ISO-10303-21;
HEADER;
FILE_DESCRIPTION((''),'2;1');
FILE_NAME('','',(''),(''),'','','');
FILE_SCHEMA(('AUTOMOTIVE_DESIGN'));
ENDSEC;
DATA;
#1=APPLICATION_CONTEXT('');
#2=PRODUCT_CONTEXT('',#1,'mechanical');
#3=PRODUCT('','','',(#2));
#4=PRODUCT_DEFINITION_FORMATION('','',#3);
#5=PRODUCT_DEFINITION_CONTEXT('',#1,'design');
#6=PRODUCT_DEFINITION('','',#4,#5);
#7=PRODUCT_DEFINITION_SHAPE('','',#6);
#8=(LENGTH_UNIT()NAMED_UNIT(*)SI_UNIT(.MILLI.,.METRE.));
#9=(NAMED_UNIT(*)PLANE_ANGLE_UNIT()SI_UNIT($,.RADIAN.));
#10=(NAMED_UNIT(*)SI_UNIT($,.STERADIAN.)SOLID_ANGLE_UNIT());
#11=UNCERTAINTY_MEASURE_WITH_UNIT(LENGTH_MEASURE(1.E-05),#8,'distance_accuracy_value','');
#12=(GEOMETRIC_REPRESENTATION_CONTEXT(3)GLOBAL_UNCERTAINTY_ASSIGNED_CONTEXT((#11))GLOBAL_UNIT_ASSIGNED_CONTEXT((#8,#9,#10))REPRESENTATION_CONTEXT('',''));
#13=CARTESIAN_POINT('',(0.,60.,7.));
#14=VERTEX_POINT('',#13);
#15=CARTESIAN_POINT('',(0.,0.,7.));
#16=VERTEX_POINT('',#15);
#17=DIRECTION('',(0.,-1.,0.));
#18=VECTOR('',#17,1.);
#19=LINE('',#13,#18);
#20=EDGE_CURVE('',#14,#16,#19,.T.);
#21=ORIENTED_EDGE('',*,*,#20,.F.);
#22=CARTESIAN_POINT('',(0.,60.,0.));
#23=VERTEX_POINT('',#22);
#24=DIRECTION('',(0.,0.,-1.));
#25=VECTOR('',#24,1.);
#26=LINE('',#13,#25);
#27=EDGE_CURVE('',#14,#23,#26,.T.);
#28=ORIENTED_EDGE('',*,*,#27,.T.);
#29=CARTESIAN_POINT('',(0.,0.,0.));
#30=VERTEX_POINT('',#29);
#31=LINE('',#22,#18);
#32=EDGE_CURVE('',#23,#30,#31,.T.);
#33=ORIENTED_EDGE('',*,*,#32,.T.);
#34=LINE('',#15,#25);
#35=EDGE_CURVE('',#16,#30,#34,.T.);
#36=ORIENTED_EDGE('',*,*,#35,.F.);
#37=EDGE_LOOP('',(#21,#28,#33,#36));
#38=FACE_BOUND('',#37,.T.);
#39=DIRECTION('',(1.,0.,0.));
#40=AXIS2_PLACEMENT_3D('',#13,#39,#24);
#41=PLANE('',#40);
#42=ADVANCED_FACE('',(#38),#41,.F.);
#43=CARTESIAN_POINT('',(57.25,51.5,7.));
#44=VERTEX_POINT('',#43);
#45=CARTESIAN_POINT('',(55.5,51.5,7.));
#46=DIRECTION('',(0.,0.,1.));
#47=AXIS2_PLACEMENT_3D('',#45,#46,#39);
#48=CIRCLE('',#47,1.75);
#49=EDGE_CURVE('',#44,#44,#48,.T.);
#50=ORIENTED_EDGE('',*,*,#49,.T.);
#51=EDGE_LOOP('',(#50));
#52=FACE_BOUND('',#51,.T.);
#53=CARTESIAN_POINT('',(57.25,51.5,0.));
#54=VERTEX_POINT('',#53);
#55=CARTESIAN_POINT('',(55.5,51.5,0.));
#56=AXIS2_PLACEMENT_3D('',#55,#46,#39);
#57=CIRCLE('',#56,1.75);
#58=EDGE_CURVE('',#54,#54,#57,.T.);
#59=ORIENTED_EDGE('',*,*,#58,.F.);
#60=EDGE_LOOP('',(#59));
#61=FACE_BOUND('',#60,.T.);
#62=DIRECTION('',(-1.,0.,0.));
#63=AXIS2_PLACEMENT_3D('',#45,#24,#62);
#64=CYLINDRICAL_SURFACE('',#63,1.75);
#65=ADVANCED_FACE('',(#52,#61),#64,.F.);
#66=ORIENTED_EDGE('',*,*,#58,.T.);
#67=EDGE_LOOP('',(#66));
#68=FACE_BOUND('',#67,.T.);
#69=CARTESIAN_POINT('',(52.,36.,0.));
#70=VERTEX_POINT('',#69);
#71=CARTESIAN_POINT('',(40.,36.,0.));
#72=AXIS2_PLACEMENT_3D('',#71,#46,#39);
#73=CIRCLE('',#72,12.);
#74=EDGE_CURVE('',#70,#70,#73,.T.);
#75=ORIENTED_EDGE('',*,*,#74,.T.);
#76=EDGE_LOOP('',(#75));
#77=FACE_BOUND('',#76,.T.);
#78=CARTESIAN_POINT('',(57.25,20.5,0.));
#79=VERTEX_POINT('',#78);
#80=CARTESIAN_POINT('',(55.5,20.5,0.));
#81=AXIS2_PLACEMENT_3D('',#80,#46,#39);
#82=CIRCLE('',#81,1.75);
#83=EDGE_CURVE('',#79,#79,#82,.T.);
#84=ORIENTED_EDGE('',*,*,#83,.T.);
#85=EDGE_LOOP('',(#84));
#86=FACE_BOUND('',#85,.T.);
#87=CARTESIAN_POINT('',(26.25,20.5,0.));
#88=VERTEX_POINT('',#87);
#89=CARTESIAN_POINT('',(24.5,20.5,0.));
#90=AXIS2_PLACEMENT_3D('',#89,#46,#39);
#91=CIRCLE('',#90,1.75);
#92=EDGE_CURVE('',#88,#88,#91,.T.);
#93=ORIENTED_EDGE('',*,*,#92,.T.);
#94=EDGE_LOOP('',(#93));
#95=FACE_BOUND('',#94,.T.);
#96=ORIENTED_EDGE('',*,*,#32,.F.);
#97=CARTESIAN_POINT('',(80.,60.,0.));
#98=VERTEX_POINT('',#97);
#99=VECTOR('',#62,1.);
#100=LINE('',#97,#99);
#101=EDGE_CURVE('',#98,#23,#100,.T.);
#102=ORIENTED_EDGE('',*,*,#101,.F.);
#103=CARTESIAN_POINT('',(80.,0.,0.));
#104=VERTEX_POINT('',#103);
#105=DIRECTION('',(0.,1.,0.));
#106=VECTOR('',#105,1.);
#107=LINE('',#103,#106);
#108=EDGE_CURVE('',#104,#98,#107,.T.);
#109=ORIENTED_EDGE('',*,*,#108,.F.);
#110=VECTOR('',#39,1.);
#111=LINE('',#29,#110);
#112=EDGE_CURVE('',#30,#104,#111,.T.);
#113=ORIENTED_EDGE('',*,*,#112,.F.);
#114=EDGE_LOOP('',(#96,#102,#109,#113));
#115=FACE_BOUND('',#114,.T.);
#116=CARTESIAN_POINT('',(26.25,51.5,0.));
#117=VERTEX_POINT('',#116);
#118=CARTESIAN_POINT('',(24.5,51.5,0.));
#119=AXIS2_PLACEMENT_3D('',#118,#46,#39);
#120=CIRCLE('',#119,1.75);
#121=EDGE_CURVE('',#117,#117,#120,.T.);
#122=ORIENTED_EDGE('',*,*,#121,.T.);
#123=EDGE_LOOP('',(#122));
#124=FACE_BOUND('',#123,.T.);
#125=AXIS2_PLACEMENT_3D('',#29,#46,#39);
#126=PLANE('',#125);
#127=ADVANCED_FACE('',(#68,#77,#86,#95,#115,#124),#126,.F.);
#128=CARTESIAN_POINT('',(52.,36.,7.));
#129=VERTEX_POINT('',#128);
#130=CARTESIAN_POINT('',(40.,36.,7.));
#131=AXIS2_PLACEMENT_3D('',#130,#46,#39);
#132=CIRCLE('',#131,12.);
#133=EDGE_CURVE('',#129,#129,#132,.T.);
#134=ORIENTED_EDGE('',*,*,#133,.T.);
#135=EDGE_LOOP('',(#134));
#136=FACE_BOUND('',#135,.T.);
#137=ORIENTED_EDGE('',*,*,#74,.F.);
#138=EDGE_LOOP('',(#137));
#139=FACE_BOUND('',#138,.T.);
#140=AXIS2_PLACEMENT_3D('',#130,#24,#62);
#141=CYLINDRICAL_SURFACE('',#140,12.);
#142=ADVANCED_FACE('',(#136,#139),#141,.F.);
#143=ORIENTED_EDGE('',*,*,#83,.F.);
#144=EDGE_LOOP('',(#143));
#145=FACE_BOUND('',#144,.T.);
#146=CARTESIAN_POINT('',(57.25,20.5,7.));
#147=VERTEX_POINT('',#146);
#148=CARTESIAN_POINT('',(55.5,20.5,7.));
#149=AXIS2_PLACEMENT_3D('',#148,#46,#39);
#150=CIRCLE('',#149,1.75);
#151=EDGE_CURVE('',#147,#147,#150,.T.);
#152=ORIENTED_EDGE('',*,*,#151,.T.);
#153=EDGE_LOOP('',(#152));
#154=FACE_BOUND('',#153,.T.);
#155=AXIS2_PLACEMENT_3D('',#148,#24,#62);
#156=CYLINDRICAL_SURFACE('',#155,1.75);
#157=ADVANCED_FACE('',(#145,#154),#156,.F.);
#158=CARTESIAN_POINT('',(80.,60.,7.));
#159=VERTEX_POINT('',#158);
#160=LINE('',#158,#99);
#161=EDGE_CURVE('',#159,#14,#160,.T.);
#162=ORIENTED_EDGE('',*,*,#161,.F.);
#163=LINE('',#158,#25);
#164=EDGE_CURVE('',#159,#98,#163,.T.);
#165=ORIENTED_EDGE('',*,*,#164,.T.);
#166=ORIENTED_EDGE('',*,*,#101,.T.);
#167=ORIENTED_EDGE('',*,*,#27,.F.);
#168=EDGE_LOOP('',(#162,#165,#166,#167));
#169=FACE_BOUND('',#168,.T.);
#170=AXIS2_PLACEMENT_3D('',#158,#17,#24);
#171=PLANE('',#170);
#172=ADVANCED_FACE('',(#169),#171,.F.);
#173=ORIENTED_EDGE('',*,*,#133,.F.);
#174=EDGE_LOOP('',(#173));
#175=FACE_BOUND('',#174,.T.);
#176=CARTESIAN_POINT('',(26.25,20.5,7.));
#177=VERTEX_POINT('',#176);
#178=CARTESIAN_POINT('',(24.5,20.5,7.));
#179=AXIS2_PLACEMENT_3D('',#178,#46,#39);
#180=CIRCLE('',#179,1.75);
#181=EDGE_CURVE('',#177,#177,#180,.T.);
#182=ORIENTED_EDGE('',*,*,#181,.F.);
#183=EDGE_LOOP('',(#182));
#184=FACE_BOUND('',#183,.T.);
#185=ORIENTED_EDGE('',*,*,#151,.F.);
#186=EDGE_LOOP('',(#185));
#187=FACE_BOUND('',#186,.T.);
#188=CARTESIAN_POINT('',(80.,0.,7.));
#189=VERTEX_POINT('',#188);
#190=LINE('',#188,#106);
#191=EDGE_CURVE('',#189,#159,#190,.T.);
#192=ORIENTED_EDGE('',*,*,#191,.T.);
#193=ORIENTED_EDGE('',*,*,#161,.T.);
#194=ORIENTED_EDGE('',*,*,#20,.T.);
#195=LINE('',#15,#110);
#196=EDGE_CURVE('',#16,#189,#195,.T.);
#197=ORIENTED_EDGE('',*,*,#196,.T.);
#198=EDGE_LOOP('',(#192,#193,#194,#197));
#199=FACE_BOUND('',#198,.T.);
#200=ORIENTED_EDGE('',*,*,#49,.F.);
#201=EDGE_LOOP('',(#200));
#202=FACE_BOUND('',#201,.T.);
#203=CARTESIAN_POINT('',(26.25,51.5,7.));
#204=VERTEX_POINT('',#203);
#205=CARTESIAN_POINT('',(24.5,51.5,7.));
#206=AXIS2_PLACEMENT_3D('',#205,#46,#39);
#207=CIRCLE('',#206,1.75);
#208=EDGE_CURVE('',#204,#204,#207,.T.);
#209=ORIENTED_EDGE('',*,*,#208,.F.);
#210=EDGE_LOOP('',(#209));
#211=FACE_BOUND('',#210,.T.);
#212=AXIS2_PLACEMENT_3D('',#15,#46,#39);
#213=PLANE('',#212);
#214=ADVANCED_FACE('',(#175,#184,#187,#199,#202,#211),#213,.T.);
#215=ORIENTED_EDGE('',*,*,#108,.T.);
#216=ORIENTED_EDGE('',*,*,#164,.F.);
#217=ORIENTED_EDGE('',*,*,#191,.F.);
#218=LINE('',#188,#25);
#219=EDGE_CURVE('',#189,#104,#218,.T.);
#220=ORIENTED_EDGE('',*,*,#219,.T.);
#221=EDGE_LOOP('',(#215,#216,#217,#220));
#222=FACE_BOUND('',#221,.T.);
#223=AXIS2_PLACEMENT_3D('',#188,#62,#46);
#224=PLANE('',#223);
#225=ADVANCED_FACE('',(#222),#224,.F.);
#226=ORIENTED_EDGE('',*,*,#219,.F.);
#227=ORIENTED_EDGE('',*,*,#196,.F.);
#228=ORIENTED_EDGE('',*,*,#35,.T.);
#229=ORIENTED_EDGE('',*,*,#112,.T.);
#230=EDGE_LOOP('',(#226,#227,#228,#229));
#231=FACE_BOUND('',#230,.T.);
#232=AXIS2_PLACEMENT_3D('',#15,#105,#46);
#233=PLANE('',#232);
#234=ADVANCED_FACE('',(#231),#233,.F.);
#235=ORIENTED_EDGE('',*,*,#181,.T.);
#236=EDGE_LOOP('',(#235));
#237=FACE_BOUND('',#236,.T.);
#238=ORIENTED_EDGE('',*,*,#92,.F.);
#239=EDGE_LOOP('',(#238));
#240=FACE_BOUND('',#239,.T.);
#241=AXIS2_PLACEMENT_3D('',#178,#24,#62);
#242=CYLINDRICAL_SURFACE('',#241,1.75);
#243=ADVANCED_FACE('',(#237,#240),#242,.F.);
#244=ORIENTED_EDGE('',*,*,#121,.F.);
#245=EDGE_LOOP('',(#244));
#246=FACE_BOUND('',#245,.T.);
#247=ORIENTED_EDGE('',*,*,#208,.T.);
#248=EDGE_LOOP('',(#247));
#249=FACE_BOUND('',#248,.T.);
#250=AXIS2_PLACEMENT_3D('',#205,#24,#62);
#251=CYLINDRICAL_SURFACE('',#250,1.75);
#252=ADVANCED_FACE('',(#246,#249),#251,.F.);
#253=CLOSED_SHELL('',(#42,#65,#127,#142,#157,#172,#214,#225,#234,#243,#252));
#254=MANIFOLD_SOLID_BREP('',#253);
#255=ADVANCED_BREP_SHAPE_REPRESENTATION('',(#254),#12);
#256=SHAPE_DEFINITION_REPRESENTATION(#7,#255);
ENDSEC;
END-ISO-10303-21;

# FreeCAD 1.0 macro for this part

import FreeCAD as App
import Part
import Sketcher

V = App.Vector
Q = App.Units.Quantity


def add_polygon(sketch, points):
    """Adds a closed chain of lines whose ends are joined by coincident constraints."""
    first, n = sketch.GeometryCount, len(points)
    for a, b in zip(points, points[1:] + points[:1]):
        sketch.addGeometry(Part.LineSegment(App.Vector(*a, 0), App.Vector(*b, 0)), False)
    for i in range(n):
        sketch.addConstraint(Sketcher.Constraint("Coincident", first + i, 2, first + (i + 1) % n, 1))

doc = App.newDocument("Part")
body = doc.addObject("PartDesign::Body", "Body")

# Sketch on XY plane
sketch1 = body.newObject("Sketcher::SketchObject", "Sketch")
sketch1.AttachmentSupport = (doc.getObject("XY_Plane"), [""])
sketch1.MapMode = "FlatFace"
add_polygon(sketch1, [(0, 60), (0, 0), (80, 0), (80, 60)])  # lines 0-3
sketch1.addGeometry(Part.Circle(V(24.5, 20.5, 0), V(0, 0, 1), 1.75), False)  # 4
sketch1.addGeometry(Part.Circle(V(55.5, 20.5, 0), V(0, 0, 1), 1.75), False)  # 5
sketch1.addGeometry(Part.Circle(V(24.5, 51.5, 0), V(0, 0, 1), 1.75), False)  # 6
sketch1.addGeometry(Part.Circle(V(40, 36, 0), V(0, 0, 1), 12), False)  # 7
sketch1.addGeometry(Part.Circle(V(55.5, 51.5, 0), V(0, 0, 1), 1.75), False)  # 8
sketch1.addConstraint([
    Sketcher.Constraint("Vertical", 0),
    Sketcher.Constraint("Horizontal", 1),
    Sketcher.Constraint("Vertical", 2),
    Sketcher.Constraint("Horizontal", 3),
    Sketcher.Constraint("Coincident", 0, 2, -1, 1),
    Sketcher.Constraint("Equal", 4, 5),
    Sketcher.Constraint("Equal", 5, 6),
    Sketcher.Constraint("Equal", 6, 8),
    Sketcher.Constraint("Horizontal", 4, 3, 5, 3),
    Sketcher.Constraint("Horizontal", 6, 3, 8, 3),
    Sketcher.Constraint("Vertical", 4, 3, 6, 3),
    Sketcher.Constraint("Vertical", 5, 3, 8, 3),
    Sketcher.Constraint("Diameter", 7, Q("24 mm")),
    Sketcher.Constraint("Diameter", 4, Q("3.5 mm")),
    Sketcher.Constraint("DistanceX", 1, 1, 1, 2, Q("80 mm")),
    Sketcher.Constraint("DistanceY", 0, 2, 0, 1, Q("60 mm")),
    Sketcher.Constraint("DistanceX", -1, 1, 7, 3, Q("40 mm")),
    Sketcher.Constraint("DistanceY", -1, 1, 7, 3, Q("36 mm")),
    Sketcher.Constraint("DistanceX", 4, 3, 5, 3, Q("31 mm")),
    Sketcher.Constraint("DistanceY", 4, 3, 6, 3, Q("31 mm")),
    Sketcher.Constraint("DistanceX", -1, 1, 4, 3, Q("24.5 mm")),
    Sketcher.Constraint("DistanceY", -1, 1, 4, 3, Q("20.5 mm")),
])
pad1 = body.newObject("PartDesign::Pad", "Pad")
pad1.Profile = sketch1
pad1.Length = 7

doc.recompute()
